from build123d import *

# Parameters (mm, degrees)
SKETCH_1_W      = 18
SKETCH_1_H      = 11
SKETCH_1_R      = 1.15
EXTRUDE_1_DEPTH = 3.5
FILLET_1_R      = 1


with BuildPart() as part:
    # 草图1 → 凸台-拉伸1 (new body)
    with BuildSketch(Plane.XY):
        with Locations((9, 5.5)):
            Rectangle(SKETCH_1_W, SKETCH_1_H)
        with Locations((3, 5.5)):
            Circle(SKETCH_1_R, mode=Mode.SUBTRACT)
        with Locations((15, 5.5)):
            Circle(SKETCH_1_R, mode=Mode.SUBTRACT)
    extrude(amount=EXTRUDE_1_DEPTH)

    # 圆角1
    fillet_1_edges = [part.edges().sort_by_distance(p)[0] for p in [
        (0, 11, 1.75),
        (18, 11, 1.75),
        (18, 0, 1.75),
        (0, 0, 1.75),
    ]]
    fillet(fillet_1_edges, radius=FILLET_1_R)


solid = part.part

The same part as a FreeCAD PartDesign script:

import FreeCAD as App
import Part
import Sketcher

V = App.Vector


def edges_at(feature, points):
    """Names of the edges that pass closest to the given points."""
    edges = feature.Shape.Edges
    near = lambda p: min(range(len(edges)), key=lambda i: edges[i].distToShape(Part.Vertex(*p))[0])
    return sorted({f"Edge{near(p) + 1}" for p in points})


def add_polygon(sketch, points):
    """Adds a closed chain of lines whose ends are joined by coincident constraints."""
    first, n = sketch.GeometryCount, len(points)
    for a, b in zip(points, points[1:] + points[:1]):
        sketch.addGeometry(Part.LineSegment(App.Vector(*a, 0), App.Vector(*b, 0)), False)
    for i in range(n):
        sketch.addConstraint(Sketcher.Constraint("Coincident", first + i, 2, first + (i + 1) % n, 1))

doc = App.newDocument("Part")
body = doc.addObject("PartDesign::Body", "Body")

# Sketch on XY plane
sketch1 = body.newObject("Sketcher::SketchObject", "Sketch")
sketch1.AttachmentSupport = (doc.getObject("XY_Plane"), [""])
sketch1.MapMode = "FlatFace"
add_polygon(sketch1, [(0, 11), (0, 0), (18, 0), (18, 11)])  # lines 0-3
sketch1.addGeometry(Part.Circle(V(3, 5.5, 0), V(0, 0, 1), 1.1), False)  # 4
sketch1.addGeometry(Part.Circle(V(15, 5.5, 0), V(0, 0, 1), 1.1), False)  # 5
sketch1.addConstraint(Sketcher.Constraint("Vertical", 0))
sketch1.addConstraint(Sketcher.Constraint("Horizontal", 1))
sketch1.addConstraint(Sketcher.Constraint("Vertical", 2))
sketch1.addConstraint(Sketcher.Constraint("Horizontal", 3))
sketch1.addConstraint(Sketcher.Constraint("Coincident", 0, 2, -1, 1))
sketch1.addConstraint(Sketcher.Constraint("Equal", 4, 5))
sketch1.addConstraint(Sketcher.Constraint("Horizontal", 4, 3, 5, 3))
sketch1.addConstraint(Sketcher.Constraint("Diameter", 4, 2.3))
sketch1.addConstraint(Sketcher.Constraint("DistanceX", 1, 1, 1, 2, 18.0))
sketch1.addConstraint(Sketcher.Constraint("DistanceY", 0, 2, 0, 1, 11.0))
sketch1.addConstraint(Sketcher.Constraint("DistanceX", -1, 1, 4, 3, 3.0))
sketch1.addConstraint(Sketcher.Constraint("DistanceX", -1, 1, 5, 3, 15.0))
sketch1.addConstraint(Sketcher.Constraint("DistanceY", -1, 1, 4, 3, 5.5))
pad1 = body.newObject("PartDesign::Pad", "Pad")
pad1.Profile = sketch1
pad1.Length = 3.5
doc.recompute()

fillet = body.newObject("PartDesign::Fillet", "Fillet")
fillet.Base = (pad1, edges_at(pad1, [
    (0, 11, 1.75),
    (18, 11, 1.75),
    (18, 0, 1.75),
    (0, 0, 1.75),
]))
fillet.Radius = 1

doc.recompute()
